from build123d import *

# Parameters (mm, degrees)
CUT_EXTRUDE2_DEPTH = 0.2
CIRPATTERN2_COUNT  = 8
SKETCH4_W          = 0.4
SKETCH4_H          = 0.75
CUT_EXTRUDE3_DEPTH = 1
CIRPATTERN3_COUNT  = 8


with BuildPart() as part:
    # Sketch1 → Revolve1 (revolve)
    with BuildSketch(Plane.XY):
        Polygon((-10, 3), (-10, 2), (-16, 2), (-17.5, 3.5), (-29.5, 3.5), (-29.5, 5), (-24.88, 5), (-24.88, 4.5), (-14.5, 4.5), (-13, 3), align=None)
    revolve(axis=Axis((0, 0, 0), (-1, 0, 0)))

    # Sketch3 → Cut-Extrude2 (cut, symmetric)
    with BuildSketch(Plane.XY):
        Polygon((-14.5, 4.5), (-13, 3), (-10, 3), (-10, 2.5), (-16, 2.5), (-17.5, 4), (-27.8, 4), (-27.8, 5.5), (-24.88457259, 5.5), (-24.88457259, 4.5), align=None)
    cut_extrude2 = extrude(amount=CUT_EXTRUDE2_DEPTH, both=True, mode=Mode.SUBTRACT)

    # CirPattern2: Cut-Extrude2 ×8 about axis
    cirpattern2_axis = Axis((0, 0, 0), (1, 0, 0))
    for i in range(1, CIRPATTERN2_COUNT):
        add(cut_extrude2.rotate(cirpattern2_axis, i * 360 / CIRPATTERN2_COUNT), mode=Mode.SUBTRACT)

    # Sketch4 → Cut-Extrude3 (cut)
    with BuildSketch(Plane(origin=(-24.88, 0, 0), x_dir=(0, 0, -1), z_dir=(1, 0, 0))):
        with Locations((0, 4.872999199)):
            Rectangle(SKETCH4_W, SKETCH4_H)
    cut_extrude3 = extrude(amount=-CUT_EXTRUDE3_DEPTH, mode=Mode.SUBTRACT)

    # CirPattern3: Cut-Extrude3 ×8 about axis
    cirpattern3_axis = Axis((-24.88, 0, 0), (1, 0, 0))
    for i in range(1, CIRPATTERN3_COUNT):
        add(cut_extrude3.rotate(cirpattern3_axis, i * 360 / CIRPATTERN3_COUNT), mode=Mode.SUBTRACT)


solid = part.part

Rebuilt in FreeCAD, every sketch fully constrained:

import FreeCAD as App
import Part
import Sketcher
Q = App.Units.Quantity

doc = App.newDocument("Part")
params = doc.addObject("Spreadsheet::Sheet", "Params")
for row, (alias, value) in enumerate([
    ("sketch1_width", "3 mm"),
    ("sketch1_width2", "12 mm"),
    ("sketch1_width3", "6 mm"),
    ("sketch1_height", "1 mm"),
    ("sketch1_height2", "0.5 mm"),
    ("revolution_angle", "360 deg"),
    ("sketch2_width", "6 mm"),
    ("sketch2_width2", "3 mm"),
    ("sketch2_height", "1 mm"),
    ("sketch2_width3", "10.3 mm"),
    ("sketch2_height2", "1.5 mm"),
    ("pocket1_length", "0.4 mm"),
    ("sketch3_height", "0.4 mm"),
    ("sketch3_width", "0.75 mm"),
    ("pocket2_length", "1 mm"),
], start=1):
    params.set(f"A{row}", alias)
    params.set(f"B{row}", "=" + value)
    params.setAlias(f"B{row}", alias)

body = doc.addObject("PartDesign::Body", "Body")

# Sketch on XY plane
sketch1 = body.newObject("Sketcher::SketchObject", "Sketch")
sketch1.AttachmentSupport = (doc.getObject("XY_Plane"), [""])
sketch1.MapMode = "FlatFace"
sketch1.addGeometry([
    Part.LineSegment(App.Vector(-10, 2, 0), App.Vector(-10, 3, 0)),  # 0
    Part.LineSegment(App.Vector(-10, 3, 0), App.Vector(-13, 3, 0)),  # 1
    Part.LineSegment(App.Vector(-13, 3, 0), App.Vector(-14.5, 4.5, 0)),  # 2
    Part.LineSegment(App.Vector(-14.5, 4.5, 0), App.Vector(-24.9, 4.5, 0)),  # 3
    Part.LineSegment(App.Vector(-24.9, 4.5, 0), App.Vector(-24.9, 5, 0)),  # 4
    Part.LineSegment(App.Vector(-24.9, 5, 0), App.Vector(-29.5, 5, 0)),  # 5
    Part.LineSegment(App.Vector(-29.5, 5, 0), App.Vector(-29.5, 3.5, 0)),  # 6
    Part.LineSegment(App.Vector(-29.5, 3.5, 0), App.Vector(-17.5, 3.5, 0)),  # 7
    Part.LineSegment(App.Vector(-17.5, 3.5, 0), App.Vector(-16, 2, 0)),  # 8
    Part.LineSegment(App.Vector(-16, 2, 0), App.Vector(-10, 2, 0)),  # 9
], False)
sketch1.addConstraint([
    Sketcher.Constraint("Coincident", 0, 2, 1, 1),
    Sketcher.Constraint("Coincident", 1, 2, 2, 1),
    Sketcher.Constraint("Coincident", 2, 2, 3, 1),
    Sketcher.Constraint("Coincident", 3, 2, 4, 1),
    Sketcher.Constraint("Coincident", 4, 2, 5, 1),
    Sketcher.Constraint("Coincident", 5, 2, 6, 1),
    Sketcher.Constraint("Coincident", 6, 2, 7, 1),
    Sketcher.Constraint("Coincident", 7, 2, 8, 1),
    Sketcher.Constraint("Coincident", 8, 2, 9, 1),
    Sketcher.Constraint("Coincident", 9, 2, 0, 1),
    Sketcher.Constraint("Vertical", 0),
    Sketcher.Constraint("Horizontal", 1),
    Sketcher.Constraint("Horizontal", 3),
    Sketcher.Constraint("Vertical", 4),
    Sketcher.Constraint("Horizontal", 5),
    Sketcher.Constraint("Vertical", 6),
    Sketcher.Constraint("Horizontal", 7),
    Sketcher.Constraint("Horizontal", 9),
    Sketcher.Constraint("Parallel", 2, 8),
    Sketcher.Constraint("Equal", 2, 8),
    Sketcher.Constraint("DistanceX", 1, 2, 1, 1, 3.0),
    Sketcher.Constraint("DistanceX", 7, 1, 7, 2, 12.0),
    Sketcher.Constraint("DistanceX", 9, 1, 9, 2, 6.0),
    Sketcher.Constraint("DistanceY", 0, 1, 0, 2, 1.0),
    Sketcher.Constraint("Angle", 2, Q("135 deg")),
    Sketcher.Constraint("DistanceY", 4, 1, 4, 2, 0.5),
    Sketcher.Constraint("DistanceX", 0, 2, -1, 1, 10.0),
    Sketcher.Constraint("DistanceY", -1, 1, 0, 2, 3.0),
    Sketcher.Constraint("DistanceY", -1, 1, 4, 2, 5.0),
    Sketcher.Constraint("DistanceX", 3, 2, 3, 1, 10.38),
])
sketch1.setExpression("Constraints[20]", "Params.sketch1_width")
sketch1.setExpression("Constraints[21]", "Params.sketch1_width2")
sketch1.setExpression("Constraints[22]", "Params.sketch1_width3")
sketch1.setExpression("Constraints[23]", "Params.sketch1_height")
sketch1.setExpression("Constraints[25]", "Params.sketch1_height2")
revolution = body.newObject("PartDesign::Revolution", "Revolution")
revolution.Profile = sketch1
revolution.ReferenceAxis = (sketch1, ["H_Axis"])
revolution.setExpression("Angle", "Params.revolution_angle")

# Sketch on XY plane
sketch2 = body.newObject("Sketcher::SketchObject", "Sketch001")
sketch2.AttachmentSupport = (doc.getObject("XY_Plane"), [""])
sketch2.MapMode = "FlatFace"
sketch2.addGeometry([
    Part.LineSegment(App.Vector(-13, 3, 0), App.Vector(-14.5, 4.5, 0)),  # 0
    Part.LineSegment(App.Vector(-14.5, 4.5, 0), App.Vector(-24.9, 4.5, 0)),  # 1
    Part.LineSegment(App.Vector(-24.9, 4.5, 0), App.Vector(-24.9, 5.5, 0)),  # 2
    Part.LineSegment(App.Vector(-24.9, 5.5, 0), App.Vector(-27.8, 5.5, 0)),  # 3
    Part.LineSegment(App.Vector(-27.8, 5.5, 0), App.Vector(-27.8, 4, 0)),  # 4
    Part.LineSegment(App.Vector(-27.8, 4, 0), App.Vector(-17.5, 4, 0)),  # 5
    Part.LineSegment(App.Vector(-17.5, 4, 0), App.Vector(-16, 2.5, 0)),  # 6
    Part.LineSegment(App.Vector(-16, 2.5, 0), App.Vector(-10, 2.5, 0)),  # 7
    Part.LineSegment(App.Vector(-10, 2.5, 0), App.Vector(-10, 3, 0)),  # 8
    Part.LineSegment(App.Vector(-10, 3, 0), App.Vector(-13, 3, 0)),  # 9
], False)
sketch2.addConstraint([
    Sketcher.Constraint("Coincident", 0, 2, 1, 1),
    Sketcher.Constraint("Coincident", 1, 2, 2, 1),
    Sketcher.Constraint("Coincident", 2, 2, 3, 1),
    Sketcher.Constraint("Coincident", 3, 2, 4, 1),
    Sketcher.Constraint("Coincident", 4, 2, 5, 1),
    Sketcher.Constraint("Coincident", 5, 2, 6, 1),
    Sketcher.Constraint("Coincident", 6, 2, 7, 1),
    Sketcher.Constraint("Coincident", 7, 2, 8, 1),
    Sketcher.Constraint("Coincident", 8, 2, 9, 1),
    Sketcher.Constraint("Coincident", 9, 2, 0, 1),
    Sketcher.Constraint("Horizontal", 1),
    Sketcher.Constraint("Vertical", 2),
    Sketcher.Constraint("Horizontal", 3),
    Sketcher.Constraint("Vertical", 4),
    Sketcher.Constraint("Horizontal", 5),
    Sketcher.Constraint("Horizontal", 7),
    Sketcher.Constraint("Vertical", 8),
    Sketcher.Constraint("Horizontal", 9),
    Sketcher.Constraint("Parallel", 0, 6),
    Sketcher.Constraint("Equal", 0, 6),
    Sketcher.Constraint("DistanceX", 7, 1, 7, 2, 6.0),
    Sketcher.Constraint("DistanceX", 9, 2, 9, 1, 3.0),
    Sketcher.Constraint("DistanceY", 2, 1, 2, 2, 1.0),
    Sketcher.Constraint("Angle", 0, Q("135 deg")),
    Sketcher.Constraint("DistanceX", 5, 1, 5, 2, 10.3),
    Sketcher.Constraint("DistanceY", 4, 2, 4, 1, 1.5),
    Sketcher.Constraint("DistanceY", -1, 1, 4, 2, 4.0),
    Sketcher.Constraint("DistanceX", 6, 2, -1, 1, 16.0),
    Sketcher.Constraint("DistanceY", -1, 1, 8, 2, 3.0),
    Sketcher.Constraint("DistanceX", 1, 2, 1, 1, 10.384573),
])
sketch2.setExpression("Constraints[20]", "Params.sketch2_width")
sketch2.setExpression("Constraints[21]", "Params.sketch2_width2")
sketch2.setExpression("Constraints[22]", "Params.sketch2_height")
sketch2.setExpression("Constraints[24]", "Params.sketch2_width3")
sketch2.setExpression("Constraints[25]", "Params.sketch2_height2")
pocket1 = body.newObject("PartDesign::Pocket", "Pocket")
pocket1.Profile = sketch2
pocket1.setExpression("Length", "Params.pocket1_length")
pocket1.Midplane = True
doc.recompute()

polarpattern = body.newObject("PartDesign::PolarPattern", "PolarPattern")
polarpattern.Originals = [pocket1]
polarpattern.Axis = (doc.getObject("X_Axis"), [""])
polarpattern.Angle = 360
polarpattern.Occurrences = 8
body.Tip = polarpattern

# Sketch on YZ plane
sketch3 = body.newObject("Sketcher::SketchObject", "Sketch002")
sketch3.AttachmentSupport = (doc.getObject("YZ_Plane"), [""])
sketch3.MapMode = "FlatFace"
sketch3.AttachmentOffset = App.Placement(App.Vector(0, 0, -24.88), App.Rotation())
sketch3.addGeometry([
    Part.LineSegment(App.Vector(5.25, 0.2, 0), App.Vector(4.5, 0.2, 0)),
    Part.LineSegment(App.Vector(4.5, 0.2, 0), App.Vector(4.5, -0.2, 0)),
    Part.LineSegment(App.Vector(4.5, -0.2, 0), App.Vector(5.25, -0.2, 0)),
    Part.LineSegment(App.Vector(5.25, -0.2, 0), App.Vector(5.25, 0.2, 0)),
], False)
sketch3.addConstraint([
    Sketcher.Constraint("Coincident", 0, 2, 1, 1),
    Sketcher.Constraint("Coincident", 1, 2, 2, 1),
    Sketcher.Constraint("Coincident", 2, 2, 3, 1),
    Sketcher.Constraint("Coincident", 3, 2, 0, 1),
    Sketcher.Constraint("Horizontal", 0),
    Sketcher.Constraint("Vertical", 1),
    Sketcher.Constraint("Horizontal", 2),
    Sketcher.Constraint("Vertical", 3),
    Sketcher.Constraint("DistanceY", 1, 2, 1, 1, 0.4),
    Sketcher.Constraint("DistanceX", 0, 2, 0, 1, 0.75),
    Sketcher.Constraint("DistanceY", -1, 1, 0, 2, 0.2),
    Sketcher.Constraint("DistanceX", -1, 1, 0, 2, 4.497999),
])
sketch3.setExpression("Constraints[8]", "Params.sketch3_height")
sketch3.setExpression("Constraints[9]", "Params.sketch3_width")
pocket2 = body.newObject("PartDesign::Pocket", "Pocket001")
pocket2.Profile = sketch3
pocket2.setExpression("Length", "Params.pocket2_length")
doc.recompute()

polarpattern2 = body.newObject("PartDesign::PolarPattern", "PolarPattern001")
polarpattern2.Originals = [pocket2]
polarpattern2.Axis = (doc.getObject("X_Axis"), [""])
polarpattern2.Angle = 360
polarpattern2.Occurrences = 8
body.Tip = polarpattern2

doc.recompute()
